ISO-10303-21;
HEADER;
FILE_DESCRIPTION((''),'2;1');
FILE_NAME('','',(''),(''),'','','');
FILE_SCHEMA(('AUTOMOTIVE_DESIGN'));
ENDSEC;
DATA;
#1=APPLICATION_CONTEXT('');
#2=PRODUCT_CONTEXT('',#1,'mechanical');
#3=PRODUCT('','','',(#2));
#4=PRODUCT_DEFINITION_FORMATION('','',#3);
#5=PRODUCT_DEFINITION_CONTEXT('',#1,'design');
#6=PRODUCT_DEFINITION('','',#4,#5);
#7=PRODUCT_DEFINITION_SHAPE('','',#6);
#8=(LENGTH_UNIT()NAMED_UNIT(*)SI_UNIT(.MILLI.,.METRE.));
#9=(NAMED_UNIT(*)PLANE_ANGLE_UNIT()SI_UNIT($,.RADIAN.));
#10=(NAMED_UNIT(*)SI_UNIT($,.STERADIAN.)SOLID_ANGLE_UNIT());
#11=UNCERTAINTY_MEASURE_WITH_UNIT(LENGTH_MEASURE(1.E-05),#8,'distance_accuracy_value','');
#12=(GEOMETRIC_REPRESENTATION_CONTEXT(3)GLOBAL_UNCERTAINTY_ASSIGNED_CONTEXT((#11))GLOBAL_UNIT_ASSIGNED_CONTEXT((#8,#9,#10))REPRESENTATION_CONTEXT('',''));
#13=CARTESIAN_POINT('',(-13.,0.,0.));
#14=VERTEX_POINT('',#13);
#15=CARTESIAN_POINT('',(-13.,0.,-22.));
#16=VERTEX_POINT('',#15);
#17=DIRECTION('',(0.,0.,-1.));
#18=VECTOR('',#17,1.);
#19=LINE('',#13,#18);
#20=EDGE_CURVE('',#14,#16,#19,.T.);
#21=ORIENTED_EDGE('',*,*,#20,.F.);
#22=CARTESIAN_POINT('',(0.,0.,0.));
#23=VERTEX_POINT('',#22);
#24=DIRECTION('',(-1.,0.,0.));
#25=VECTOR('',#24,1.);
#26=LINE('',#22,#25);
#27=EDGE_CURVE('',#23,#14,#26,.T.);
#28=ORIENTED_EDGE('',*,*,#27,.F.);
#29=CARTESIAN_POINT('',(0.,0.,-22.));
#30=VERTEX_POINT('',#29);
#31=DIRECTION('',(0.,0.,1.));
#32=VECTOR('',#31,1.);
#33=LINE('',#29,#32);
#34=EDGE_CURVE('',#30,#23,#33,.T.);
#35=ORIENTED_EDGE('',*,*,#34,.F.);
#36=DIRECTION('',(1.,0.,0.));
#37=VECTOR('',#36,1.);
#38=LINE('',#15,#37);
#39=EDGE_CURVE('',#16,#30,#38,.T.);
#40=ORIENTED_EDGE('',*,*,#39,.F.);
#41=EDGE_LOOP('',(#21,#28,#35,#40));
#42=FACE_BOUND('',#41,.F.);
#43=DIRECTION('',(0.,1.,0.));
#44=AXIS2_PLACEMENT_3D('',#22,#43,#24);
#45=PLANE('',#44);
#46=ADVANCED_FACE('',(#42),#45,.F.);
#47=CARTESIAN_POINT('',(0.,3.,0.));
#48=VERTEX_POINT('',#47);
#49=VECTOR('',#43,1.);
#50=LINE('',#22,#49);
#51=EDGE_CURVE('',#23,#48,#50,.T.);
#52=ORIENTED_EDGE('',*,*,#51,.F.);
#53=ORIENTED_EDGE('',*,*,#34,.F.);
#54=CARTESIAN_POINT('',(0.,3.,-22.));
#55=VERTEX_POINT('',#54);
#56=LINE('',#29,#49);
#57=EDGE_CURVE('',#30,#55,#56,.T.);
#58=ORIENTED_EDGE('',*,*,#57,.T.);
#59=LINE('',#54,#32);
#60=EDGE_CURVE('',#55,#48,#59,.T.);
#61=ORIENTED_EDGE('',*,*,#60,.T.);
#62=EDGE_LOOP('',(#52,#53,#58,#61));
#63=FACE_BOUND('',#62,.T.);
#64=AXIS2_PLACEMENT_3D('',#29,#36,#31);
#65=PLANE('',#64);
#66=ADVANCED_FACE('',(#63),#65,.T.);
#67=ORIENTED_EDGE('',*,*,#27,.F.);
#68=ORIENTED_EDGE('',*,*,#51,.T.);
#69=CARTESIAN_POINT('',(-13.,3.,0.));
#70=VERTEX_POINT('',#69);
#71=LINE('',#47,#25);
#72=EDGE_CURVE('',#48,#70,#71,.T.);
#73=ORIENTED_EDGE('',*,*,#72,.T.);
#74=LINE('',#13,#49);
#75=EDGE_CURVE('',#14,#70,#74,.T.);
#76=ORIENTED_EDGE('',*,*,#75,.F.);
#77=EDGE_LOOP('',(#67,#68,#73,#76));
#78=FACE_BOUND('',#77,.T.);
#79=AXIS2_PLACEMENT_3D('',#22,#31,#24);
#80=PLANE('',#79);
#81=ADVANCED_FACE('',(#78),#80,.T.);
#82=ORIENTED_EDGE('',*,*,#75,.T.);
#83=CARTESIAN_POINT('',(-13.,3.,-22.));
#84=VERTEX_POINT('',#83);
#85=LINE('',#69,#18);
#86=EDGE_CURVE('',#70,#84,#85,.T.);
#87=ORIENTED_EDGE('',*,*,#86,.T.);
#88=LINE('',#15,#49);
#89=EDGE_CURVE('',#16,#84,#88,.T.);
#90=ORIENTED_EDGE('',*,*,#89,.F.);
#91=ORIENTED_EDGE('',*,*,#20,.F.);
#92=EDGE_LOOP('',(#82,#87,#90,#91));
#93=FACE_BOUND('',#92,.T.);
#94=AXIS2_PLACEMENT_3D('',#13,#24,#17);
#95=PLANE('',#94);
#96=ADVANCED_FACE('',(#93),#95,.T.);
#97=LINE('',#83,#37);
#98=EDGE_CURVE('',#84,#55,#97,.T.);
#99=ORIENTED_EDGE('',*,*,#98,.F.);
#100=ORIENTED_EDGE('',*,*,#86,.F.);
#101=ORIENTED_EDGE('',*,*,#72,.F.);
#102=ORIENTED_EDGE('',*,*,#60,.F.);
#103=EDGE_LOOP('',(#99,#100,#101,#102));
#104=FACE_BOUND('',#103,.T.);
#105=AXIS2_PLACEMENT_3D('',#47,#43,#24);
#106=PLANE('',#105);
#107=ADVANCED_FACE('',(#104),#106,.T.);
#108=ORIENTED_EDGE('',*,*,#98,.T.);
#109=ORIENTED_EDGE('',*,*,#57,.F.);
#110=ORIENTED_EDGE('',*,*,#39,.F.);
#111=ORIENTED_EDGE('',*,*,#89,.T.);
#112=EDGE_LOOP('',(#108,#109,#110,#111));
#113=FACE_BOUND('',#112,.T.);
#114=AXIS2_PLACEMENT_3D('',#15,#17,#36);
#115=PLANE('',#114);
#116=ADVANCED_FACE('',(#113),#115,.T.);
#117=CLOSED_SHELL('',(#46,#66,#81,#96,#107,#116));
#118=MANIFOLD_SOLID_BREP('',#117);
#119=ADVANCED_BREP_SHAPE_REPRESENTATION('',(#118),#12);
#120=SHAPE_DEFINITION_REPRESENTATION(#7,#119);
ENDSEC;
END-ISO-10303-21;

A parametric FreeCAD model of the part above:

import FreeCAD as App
import Part
import Sketcher
from FreeCAD import Vector


def add_polygon(sketch, points):
    """Adds a closed chain of lines whose ends are joined by coincident constraints."""
    first, n = sketch.GeometryCount, len(points)
    for a, b in zip(points, points[1:] + points[:1]):
        sketch.addGeometry(Part.LineSegment(App.Vector(*a, 0), App.Vector(*b, 0)), False)
    for i in range(n):
        sketch.addConstraint(Sketcher.Constraint("Coincident", first + i, 2, first + (i + 1) % n, 1))

doc = App.newDocument("Part")
body = doc.addObject("PartDesign::Body", "Body")

# Sketch on XZ plane
sketch1 = doc.addObject("Sketcher::SketchObject", "Sketch")
body.addObject(sketch1)
sketch1.AttachmentSupport = (doc.XZ_Plane, [""])
sketch1.MapMode = "FlatFace"
add_polygon(sketch1, [(-13, 0), (0, 0), (0, -22), (-13, -22)])  # lines 0-3
sketch1.addConstraint([
    Sketcher.Constraint("Horizontal", 0),
    Sketcher.Constraint("Vertical", 1),
    Sketcher.Constraint("Horizontal", 2),
    Sketcher.Constraint("Vertical", 3),
    Sketcher.Constraint("Coincident", 0, 2, -1, 1),
    Sketcher.Constraint("DistanceX", 0, 1, 0, 2, 13.0),
    Sketcher.Constraint("DistanceY", 1, 2, 1, 1, 22.0),
])
pad1 = doc.addObject("PartDesign::Pad", "Pad")
body.addObject(pad1)
pad1.Profile = sketch1
pad1.Length = 3
pad1.Reversed = True

doc.recompute()
